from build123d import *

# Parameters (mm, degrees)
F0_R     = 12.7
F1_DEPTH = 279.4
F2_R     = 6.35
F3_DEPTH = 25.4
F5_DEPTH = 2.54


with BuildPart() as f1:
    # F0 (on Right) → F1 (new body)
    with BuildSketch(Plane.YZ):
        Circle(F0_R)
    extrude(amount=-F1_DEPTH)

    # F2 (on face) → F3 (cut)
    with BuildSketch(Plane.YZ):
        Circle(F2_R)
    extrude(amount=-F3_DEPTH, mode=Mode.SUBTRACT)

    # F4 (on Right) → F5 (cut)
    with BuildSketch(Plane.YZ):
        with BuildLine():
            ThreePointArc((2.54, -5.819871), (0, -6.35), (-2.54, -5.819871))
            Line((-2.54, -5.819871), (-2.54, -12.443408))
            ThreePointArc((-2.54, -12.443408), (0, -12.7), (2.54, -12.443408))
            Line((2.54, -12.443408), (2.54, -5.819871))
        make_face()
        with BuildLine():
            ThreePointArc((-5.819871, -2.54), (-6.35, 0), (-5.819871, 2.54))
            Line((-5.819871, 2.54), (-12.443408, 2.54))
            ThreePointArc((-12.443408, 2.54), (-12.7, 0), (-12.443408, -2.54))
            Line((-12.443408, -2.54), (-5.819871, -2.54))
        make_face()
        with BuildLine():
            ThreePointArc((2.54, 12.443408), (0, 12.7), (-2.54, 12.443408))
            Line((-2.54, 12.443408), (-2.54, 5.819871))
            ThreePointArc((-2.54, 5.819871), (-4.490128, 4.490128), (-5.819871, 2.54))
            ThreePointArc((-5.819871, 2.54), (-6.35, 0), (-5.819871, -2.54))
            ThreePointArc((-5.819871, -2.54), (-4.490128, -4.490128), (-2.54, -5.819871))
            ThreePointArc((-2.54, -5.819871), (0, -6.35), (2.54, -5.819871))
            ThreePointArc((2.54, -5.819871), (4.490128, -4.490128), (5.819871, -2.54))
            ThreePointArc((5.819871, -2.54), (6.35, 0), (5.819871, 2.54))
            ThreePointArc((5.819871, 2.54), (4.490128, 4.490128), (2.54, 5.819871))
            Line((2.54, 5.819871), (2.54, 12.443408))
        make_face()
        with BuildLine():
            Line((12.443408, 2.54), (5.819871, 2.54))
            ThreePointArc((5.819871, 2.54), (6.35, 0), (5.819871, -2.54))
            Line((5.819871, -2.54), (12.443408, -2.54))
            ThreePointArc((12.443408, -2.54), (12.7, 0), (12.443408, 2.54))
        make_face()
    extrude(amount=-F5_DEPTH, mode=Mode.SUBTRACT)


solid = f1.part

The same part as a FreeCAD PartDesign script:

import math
import FreeCAD as App
import Part
import Sketcher

V = App.Vector
Q = App.Units.Quantity

doc = App.newDocument("Part")
params = doc.addObject("Spreadsheet::Sheet", "Params")
for row, (alias, value) in enumerate([
    ("sketch1_diameter", "1 in"),
    ("pad1_length", "11 in"),
    ("sketch2_diameter", "0.5 in"),
    ("pocket1_length", "1 in"),
    ("sketch3_radius", "0.25 in"),
    ("pocket2_length", "0.1 in"),
], start=1):
    params.set(f"A{row}", alias)
    params.set(f"B{row}", "=" + value)
    params.setAlias(f"B{row}", alias)

body = doc.addObject("PartDesign::Body", "Body")

# Sketch on YZ plane
sketch1 = body.newObject("Sketcher::SketchObject", "Sketch")
sketch1.AttachmentSupport = (doc.getObject("YZ_Plane"), [""])
sketch1.MapMode = "FlatFace"
sketch1.addGeometry(Part.Circle(V(0, 0, 0), V(0, 0, 1), 13), False)
sketch1.addConstraint([
    Sketcher.Constraint("Coincident", 0, 3, -1, 1),
    Sketcher.Constraint("Diameter", 0, Q("1 in")),
])
sketch1.setExpression("Constraints[1]", "Params.sketch1_diameter")
pad1 = body.newObject("PartDesign::Pad", "Pad")
pad1.Profile = sketch1
pad1.setExpression("Length", "Params.pad1_length")
pad1.Reversed = True

# Sketch on YZ plane
sketch2 = body.newObject("Sketcher::SketchObject", "Sketch001")
sketch2.AttachmentSupport = (doc.getObject("YZ_Plane"), [""])
sketch2.MapMode = "FlatFace"
sketch2.addGeometry(Part.Circle(V(0, 0, 0), V(0, 0, 1), 6), False)
sketch2.addConstraint([
    Sketcher.Constraint("Coincident", 0, 3, -1, 1),
    Sketcher.Constraint("Diameter", 0, Q("0.5 in")),
])
sketch2.setExpression("Constraints[1]", "Params.sketch2_diameter")
pocket1 = body.newObject("PartDesign::Pocket", "Pocket")
pocket1.Profile = sketch2
pocket1.setExpression("Length", "Params.pocket1_length")

# Sketch on YZ plane
sketch3 = body.newObject("Sketcher::SketchObject", "Sketch002")
sketch3.AttachmentSupport = (doc.getObject("YZ_Plane"), [""])
sketch3.MapMode = "FlatFace"
sketch3.addGeometry([
    Part.LineSegment(V(-2.5, -5.8, 0), V(-2.5, -12.4, 0)),  # 0
    Part.ArcOfCircle(Part.Circle(V(0, 0, 0), V(0, 0, 1), 12.7), math.radians(-102), math.radians(-78)),  # 1
    Part.LineSegment(V(2.5, -12.4, 0), V(2.5, -5.8, 0)),  # 2
    Part.ArcOfCircle(Part.Circle(V(0, 0, 0), V(0, 0, 1), 6.3), math.radians(-66), math.radians(-24)),  # 3
    Part.LineSegment(V(5.8, -2.5, 0), V(12.4, -2.5, 0)),  # 4
    Part.ArcOfCircle(Part.Circle(V(0, 0, 0), V(0, 0, 1), 12.7), math.radians(-12), math.radians(12)),  # 5
    Part.LineSegment(V(12.4, 2.5, 0), V(5.8, 2.5, 0)),  # 6
    Part.ArcOfCircle(Part.Circle(V(0, 0, 0), V(0, 0, 1), 6.3), math.radians(24), math.radians(66)),  # 7
    Part.LineSegment(V(2.5, 5.8, 0), V(2.5, 12.4, 0)),  # 8
    Part.ArcOfCircle(Part.Circle(V(0, 0, 0), V(0, 0, 1), 12.7), math.radians(78), math.radians(102)),  # 9
    Part.LineSegment(V(-2.5, 12.4, 0), V(-2.5, 5.8, 0)),  # 10
    Part.ArcOfCircle(Part.Circle(V(0, 0, 0), V(0, 0, 1), 6.3), math.radians(114), math.radians(156)),  # 11
    Part.LineSegment(V(-5.8, 2.5, 0), V(-12.4, 2.5, 0)),  # 12
    Part.ArcOfCircle(Part.Circle(V(0, 0, 0), V(0, 0, 1), 12.7), math.radians(168), math.radians(192)),  # 13
    Part.LineSegment(V(-12.4, -2.5, 0), V(-5.8, -2.5, 0)),  # 14
    Part.ArcOfCircle(Part.Circle(V(0, 0, 0), V(0, 0, 1), 6.3), math.radians(-156), math.radians(-114)),  # 15
], False)
sketch3.addConstraint([
    Sketcher.Constraint("Coincident", 0, 2, 1, 1),
    Sketcher.Constraint("Coincident", 1, 2, 2, 1),
    Sketcher.Constraint("Coincident", 2, 2, 3, 1),
    Sketcher.Constraint("Coincident", 3, 2, 4, 1),
    Sketcher.Constraint("Coincident", 4, 2, 5, 1),
    Sketcher.Constraint("Coincident", 5, 2, 6, 1),
    Sketcher.Constraint("Coincident", 6, 2, 7, 1),
    Sketcher.Constraint("Coincident", 7, 2, 8, 1),
    Sketcher.Constraint("Coincident", 8, 2, 9, 1),
    Sketcher.Constraint("Coincident", 9, 2, 10, 1),
    Sketcher.Constraint("Coincident", 10, 2, 11, 1),
    Sketcher.Constraint("Coincident", 11, 2, 12, 1),
    Sketcher.Constraint("Coincident", 12, 2, 13, 1),
    Sketcher.Constraint("Coincident", 13, 2, 14, 1),
    Sketcher.Constraint("Coincident", 14, 2, 15, 1),
    Sketcher.Constraint("Coincident", 15, 2, 0, 1),
    Sketcher.Constraint("Vertical", 0),
    Sketcher.Constraint("Vertical", 2),
    Sketcher.Constraint("Horizontal", 4),
    Sketcher.Constraint("Horizontal", 6),
    Sketcher.Constraint("Vertical", 8),
    Sketcher.Constraint("Vertical", 10),
    Sketcher.Constraint("Horizontal", 12),
    Sketcher.Constraint("Horizontal", 14),
    Sketcher.Constraint("Coincident", 1, 3, -1, 1),
    Sketcher.Constraint("Coincident", 3, 3, -1, 1),
    Sketcher.Constraint("Coincident", 5, 3, -1, 1),
    Sketcher.Constraint("Coincident", 7, 3, -1, 1),
    Sketcher.Constraint("Coincident", 9, 3, -1, 1),
    Sketcher.Constraint("Coincident", 11, 3, -1, 1),
    Sketcher.Constraint("Coincident", 13, 3, -1, 1),
    Sketcher.Constraint("Coincident", 15, 3, -1, 1),
    Sketcher.Constraint("Equal", 1, 5),
    Sketcher.Constraint("Equal", 3, 7),
    Sketcher.Constraint("Equal", 5, 9),
    Sketcher.Constraint("Equal", 7, 11),
    Sketcher.Constraint("Equal", 9, 13),
    Sketcher.Constraint("Equal", 11, 15),
    Sketcher.Constraint("Horizontal", 0, 2, 1, 2),
    Sketcher.Constraint("Horizontal", 8, 2, 9, 2),
    Sketcher.Constraint("Horizontal", 6, 2, 11, 2),
    Sketcher.Constraint("Horizontal", 4, 2, 13, 2),
    Sketcher.Constraint("Vertical", 4, 2, 5, 2),
    Sketcher.Constraint("Vertical", 2, 2, 7, 2),
    Sketcher.Constraint("Equal", 14, 0),
    Sketcher.Constraint("Radius", 3, Q("0.25 in")),
    Sketcher.Constraint("DistanceX", 0, 2, -1, 1, Q("0.1 in")),
    Sketcher.Constraint("Radius", 1, Q("12.700005 mm")),
])
sketch3.setExpression("Constraints[45]", "Params.sketch3_radius")
pocket2 = body.newObject("PartDesign::Pocket", "Pocket001")
pocket2.Profile = sketch3
pocket2.setExpression("Length", "Params.pocket2_length")

doc.recompute()
